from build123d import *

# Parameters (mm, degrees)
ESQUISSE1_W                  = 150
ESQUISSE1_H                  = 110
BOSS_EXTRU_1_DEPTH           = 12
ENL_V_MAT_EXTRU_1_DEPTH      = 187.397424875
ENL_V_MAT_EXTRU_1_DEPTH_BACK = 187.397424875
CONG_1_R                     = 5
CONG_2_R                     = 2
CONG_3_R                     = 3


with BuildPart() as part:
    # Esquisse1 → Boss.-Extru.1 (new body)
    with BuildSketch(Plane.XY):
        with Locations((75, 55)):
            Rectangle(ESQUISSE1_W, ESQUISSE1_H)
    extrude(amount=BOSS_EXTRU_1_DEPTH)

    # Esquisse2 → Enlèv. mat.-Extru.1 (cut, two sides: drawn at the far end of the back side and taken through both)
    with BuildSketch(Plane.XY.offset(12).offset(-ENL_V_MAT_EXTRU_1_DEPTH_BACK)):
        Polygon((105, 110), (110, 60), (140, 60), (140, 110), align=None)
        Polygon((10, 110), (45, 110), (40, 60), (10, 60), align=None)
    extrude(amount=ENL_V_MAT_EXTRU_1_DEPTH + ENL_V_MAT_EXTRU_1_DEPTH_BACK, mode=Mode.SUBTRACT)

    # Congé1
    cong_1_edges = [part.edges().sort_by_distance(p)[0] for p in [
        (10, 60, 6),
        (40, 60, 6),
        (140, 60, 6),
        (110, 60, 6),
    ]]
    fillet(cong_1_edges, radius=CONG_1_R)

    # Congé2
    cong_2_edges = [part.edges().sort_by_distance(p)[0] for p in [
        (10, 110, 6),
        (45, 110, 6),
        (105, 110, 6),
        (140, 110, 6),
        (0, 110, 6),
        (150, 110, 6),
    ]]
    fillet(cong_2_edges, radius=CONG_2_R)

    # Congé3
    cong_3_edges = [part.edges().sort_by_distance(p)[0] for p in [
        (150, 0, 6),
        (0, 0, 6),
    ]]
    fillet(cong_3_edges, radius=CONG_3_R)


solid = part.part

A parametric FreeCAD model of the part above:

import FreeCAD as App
import Part
import Sketcher


def edges_at(feature, points):
    """Names of the edges that pass closest to the given points."""
    edges = feature.Shape.Edges
    near = lambda p: min(range(len(edges)), key=lambda i: edges[i].distToShape(Part.Vertex(*p))[0])
    return sorted({f"Edge{near(p) + 1}" for p in points})


def add_polygon(sketch, points):
    """Adds a closed chain of lines whose ends are joined by coincident constraints."""
    first, n = sketch.GeometryCount, len(points)
    for a, b in zip(points, points[1:] + points[:1]):
        sketch.addGeometry(Part.LineSegment(App.Vector(*a, 0), App.Vector(*b, 0)), False)
    for i in range(n):
        sketch.addConstraint(Sketcher.Constraint("Coincident", first + i, 2, first + (i + 1) % n, 1))

doc = App.newDocument("Part")
body = doc.addObject("PartDesign::Body", "Body")

# Sketch on XY plane
sketch1 = doc.addObject("Sketcher::SketchObject", "Sketch")
body.addObject(sketch1)
sketch1.AttachmentSupport = (doc.XY_Plane, [""])
sketch1.MapMode = "FlatFace"
add_polygon(sketch1, [(0, 110), (0, 0), (150, 0), (150, 110)])  # lines 0-3
sketch1.addConstraint([
    Sketcher.Constraint("Vertical", 0),
    Sketcher.Constraint("Horizontal", 1),
    Sketcher.Constraint("Vertical", 2),
    Sketcher.Constraint("Horizontal", 3),
    Sketcher.Constraint("Coincident", 0, 2, -1, 1),
    Sketcher.Constraint("DistanceX", 1, 1, 1, 2, 150.0),
    Sketcher.Constraint("DistanceY", 0, 2, 0, 1, 110.0),
])
pad1 = doc.addObject("PartDesign::Pad", "Pad")
body.addObject(pad1)
pad1.Profile = sketch1
pad1.Length = 12

# Sketch on XY plane
sketch2 = doc.addObject("Sketcher::SketchObject", "Sketch001")
body.addObject(sketch2)
sketch2.AttachmentSupport = (doc.XY_Plane, [""])
sketch2.MapMode = "FlatFace"
sketch2.AttachmentOffset = App.Placement(App.Vector(0, 0, 12), App.Rotation())
add_polygon(sketch2, [(105, 110), (110, 60), (140, 60), (140, 110)])  # lines 0-3
add_polygon(sketch2, [(45, 110), (10, 110), (10, 60), (40, 60)])  # lines 4-7
sketch2.addConstraint([
    Sketcher.Constraint("Horizontal", 1),
    Sketcher.Constraint("Vertical", 2),
    Sketcher.Constraint("Horizontal", 3),
    Sketcher.Constraint("Horizontal", 4),
    Sketcher.Constraint("Vertical", 5),
    Sketcher.Constraint("Horizontal", 6),
    Sketcher.Constraint("Horizontal", 3, 2, 4, 2),
    Sketcher.Constraint("Horizontal", 1, 2, 5, 2),
    Sketcher.Constraint("Equal", 3, 4),
    Sketcher.Constraint("Equal", 1, 6),
    Sketcher.Constraint("DistanceX", 1, 1, 1, 2, 30.0),
    Sketcher.Constraint("DistanceX", 3, 2, 3, 1, 35.0),
    Sketcher.Constraint("DistanceY", 2, 1, 2, 2, 50.0),
    Sketcher.Constraint("DistanceX", -1, 1, 0, 2, 110.0),
    Sketcher.Constraint("DistanceY", -1, 1, 0, 2, 60.0),
    Sketcher.Constraint("DistanceX", -1, 1, 4, 2, 10.0),
])
pocket1 = doc.addObject("PartDesign::Pocket", "Pocket")
body.addObject(pocket1)
pocket1.Profile = sketch2
pocket1.Type = "ThroughAll"
pocket1.Midplane = True
doc.recompute()

fillet = doc.addObject("PartDesign::Fillet", "Fillet")
body.addObject(fillet)
fillet.Base = (pocket1, edges_at(pocket1, [
    (10, 60, 6),
    (40, 60, 6),
    (140, 60, 6),
    (110, 60, 6),
]))
fillet.Radius = 5
doc.recompute()

fillet2 = doc.addObject("PartDesign::Fillet", "Fillet001")
body.addObject(fillet2)
fillet2.Base = (fillet, edges_at(fillet, [
    (10, 110, 6),
    (45, 110, 6),
    (105, 110, 6),
    (140, 110, 6),
    (0, 110, 6),
    (150, 110, 6),
]))
fillet2.Radius = 2
doc.recompute()

fillet3 = doc.addObject("PartDesign::Fillet", "Fillet002")
body.addObject(fillet3)
fillet3.Base = (fillet2, edges_at(fillet2, [(150, 0, 6), (0, 0, 6)]))
fillet3.Radius = 3

doc.recompute()
